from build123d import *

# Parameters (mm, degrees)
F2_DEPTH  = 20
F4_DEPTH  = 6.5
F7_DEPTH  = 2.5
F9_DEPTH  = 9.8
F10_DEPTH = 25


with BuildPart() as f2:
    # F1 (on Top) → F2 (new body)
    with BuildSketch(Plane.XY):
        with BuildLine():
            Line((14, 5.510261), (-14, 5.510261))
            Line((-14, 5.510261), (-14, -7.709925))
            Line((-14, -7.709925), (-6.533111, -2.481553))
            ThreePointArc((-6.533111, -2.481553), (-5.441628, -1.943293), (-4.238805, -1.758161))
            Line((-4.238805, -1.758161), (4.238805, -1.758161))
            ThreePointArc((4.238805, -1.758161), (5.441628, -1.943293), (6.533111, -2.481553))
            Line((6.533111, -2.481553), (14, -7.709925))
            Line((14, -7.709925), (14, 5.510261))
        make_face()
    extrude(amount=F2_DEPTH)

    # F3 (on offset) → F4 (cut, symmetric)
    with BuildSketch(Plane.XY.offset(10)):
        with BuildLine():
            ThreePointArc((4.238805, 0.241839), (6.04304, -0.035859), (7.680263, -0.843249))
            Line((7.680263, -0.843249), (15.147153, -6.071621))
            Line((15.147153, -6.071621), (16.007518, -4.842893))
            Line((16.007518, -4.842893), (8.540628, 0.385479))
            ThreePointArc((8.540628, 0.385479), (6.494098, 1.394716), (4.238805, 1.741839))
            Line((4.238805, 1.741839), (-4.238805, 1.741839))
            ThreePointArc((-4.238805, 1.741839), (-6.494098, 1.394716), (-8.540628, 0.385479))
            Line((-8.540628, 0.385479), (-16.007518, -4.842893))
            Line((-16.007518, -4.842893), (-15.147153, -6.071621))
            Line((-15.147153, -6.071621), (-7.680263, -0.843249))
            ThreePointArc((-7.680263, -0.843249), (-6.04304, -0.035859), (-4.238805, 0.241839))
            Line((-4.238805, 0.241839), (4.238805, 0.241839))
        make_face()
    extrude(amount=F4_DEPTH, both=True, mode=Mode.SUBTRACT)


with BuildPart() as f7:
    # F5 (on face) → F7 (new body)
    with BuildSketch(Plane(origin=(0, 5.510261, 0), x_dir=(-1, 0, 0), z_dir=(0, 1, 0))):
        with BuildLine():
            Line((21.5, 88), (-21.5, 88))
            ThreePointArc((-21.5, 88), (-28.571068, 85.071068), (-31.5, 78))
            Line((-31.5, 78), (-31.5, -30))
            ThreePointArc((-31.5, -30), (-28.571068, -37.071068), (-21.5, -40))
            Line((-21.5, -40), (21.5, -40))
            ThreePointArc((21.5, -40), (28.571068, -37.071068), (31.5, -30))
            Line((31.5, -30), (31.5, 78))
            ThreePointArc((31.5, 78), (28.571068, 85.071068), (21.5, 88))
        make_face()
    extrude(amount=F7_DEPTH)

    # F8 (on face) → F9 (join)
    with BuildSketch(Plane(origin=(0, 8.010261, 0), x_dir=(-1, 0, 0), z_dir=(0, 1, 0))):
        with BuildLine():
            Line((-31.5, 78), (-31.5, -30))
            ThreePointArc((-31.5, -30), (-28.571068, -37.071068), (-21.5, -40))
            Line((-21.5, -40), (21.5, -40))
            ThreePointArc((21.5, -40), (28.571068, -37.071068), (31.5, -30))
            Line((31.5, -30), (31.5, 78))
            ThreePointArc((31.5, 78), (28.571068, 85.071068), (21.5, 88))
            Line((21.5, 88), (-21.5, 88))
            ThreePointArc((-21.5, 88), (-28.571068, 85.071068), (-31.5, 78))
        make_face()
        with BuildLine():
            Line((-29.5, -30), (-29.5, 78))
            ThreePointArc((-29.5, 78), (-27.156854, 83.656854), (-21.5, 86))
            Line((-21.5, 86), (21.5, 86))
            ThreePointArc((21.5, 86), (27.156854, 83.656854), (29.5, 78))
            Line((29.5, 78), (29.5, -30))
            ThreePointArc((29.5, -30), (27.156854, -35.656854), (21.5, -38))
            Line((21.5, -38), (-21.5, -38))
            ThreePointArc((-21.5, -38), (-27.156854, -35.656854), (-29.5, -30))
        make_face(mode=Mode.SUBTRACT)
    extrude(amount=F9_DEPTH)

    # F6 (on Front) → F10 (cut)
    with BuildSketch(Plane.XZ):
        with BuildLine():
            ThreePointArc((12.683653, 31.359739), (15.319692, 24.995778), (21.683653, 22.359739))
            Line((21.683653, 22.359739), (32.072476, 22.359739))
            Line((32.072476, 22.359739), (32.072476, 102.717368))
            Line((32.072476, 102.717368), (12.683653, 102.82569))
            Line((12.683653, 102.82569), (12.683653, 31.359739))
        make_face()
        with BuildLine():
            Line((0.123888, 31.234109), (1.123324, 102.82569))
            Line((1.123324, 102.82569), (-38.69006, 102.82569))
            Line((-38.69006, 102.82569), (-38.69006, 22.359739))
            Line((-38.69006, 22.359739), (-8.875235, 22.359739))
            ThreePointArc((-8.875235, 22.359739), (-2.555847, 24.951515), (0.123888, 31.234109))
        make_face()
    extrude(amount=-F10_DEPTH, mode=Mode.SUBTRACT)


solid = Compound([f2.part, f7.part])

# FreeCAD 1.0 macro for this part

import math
import FreeCAD as App
import Part
import Sketcher

V = App.Vector
Q = App.Units.Quantity

doc = App.newDocument("Part")
body = doc.addObject("PartDesign::Body", "Body")

sketch1 = body.newObject("Sketcher::SketchObject", "Sketch")
sketch1.AttachmentSupport = (doc.getObject("XY_Plane"), [""])
sketch1.MapMode = "FlatFace"
sketch1.addGeometry(Part.LineSegment(V(14, 5.510261, 0), V(-14, 5.510261, 0)), False)
sketch1.addGeometry(Part.LineSegment(V(-14, 5.510261, 0), V(-14, -7.709925, 0)), False)
sketch1.addGeometry(Part.LineSegment(V(-14, -7.709925, 0), V(-6.533111, -2.481553, 0)), False)
sketch1.addGeometry(Part.ArcOfCircle(Part.Circle(V(-4.238806, -5.758158, 0), V(0, 0, 1), 3.999997), math.radians(89.999988), math.radians(125.000016)), False)
sketch1.addGeometry(Part.LineSegment(V(-4.238805, -1.758161, 0), V(4.238805, -1.758161, 0)), False)
sketch1.addGeometry(Part.ArcOfCircle(Part.Circle(V(4.238806, -5.758158, 0), V(0, 0, 1), 3.999997), math.radians(54.999984), math.radians(90.000012)), False)
sketch1.addGeometry(Part.LineSegment(V(6.533111, -2.481553, 0), V(14, -7.709925, 0)), False)
sketch1.addGeometry(Part.LineSegment(V(14, -7.709925, 0), V(14, 5.510261, 0)), False)
sketch1.addConstraint(Sketcher.Constraint("Coincident", 0, 2, 1, 1))
sketch1.addConstraint(Sketcher.Constraint("Coincident", 1, 2, 2, 1))
sketch1.addConstraint(Sketcher.Constraint("Tangent", 2, 2, 3, 2))
sketch1.addConstraint(Sketcher.Constraint("Tangent", 3, 1, 4, 1))
sketch1.addConstraint(Sketcher.Constraint("Tangent", 4, 2, 5, 2))
sketch1.addConstraint(Sketcher.Constraint("Tangent", 5, 1, 6, 1))
sketch1.addConstraint(Sketcher.Constraint("Coincident", 6, 2, 7, 1))
sketch1.addConstraint(Sketcher.Constraint("Coincident", 7, 2, 0, 1))
sketch1.addConstraint(Sketcher.Constraint("Horizontal", 0))
sketch1.addConstraint(Sketcher.Constraint("Vertical", 1))
sketch1.addConstraint(Sketcher.Constraint("Horizontal", 4))
sketch1.addConstraint(Sketcher.Constraint("Vertical", 7))
sketch1.addConstraint(Sketcher.Constraint("Equal", 3, 5))
sketch1.addConstraint(Sketcher.Constraint("Symmetric", 2, 2, 5, 1, -2))
sketch1.addConstraint(Sketcher.Constraint("Horizontal", 1, 2, 6, 2))
sketch1.addConstraint(Sketcher.Constraint("DistanceX", 0, 2, 0, 1, Q("28 mm")))
sketch1.addConstraint(Sketcher.Constraint("Angle", 2, Q("35 deg")))
sketch1.addConstraint(Sketcher.Constraint("Radius", 3, Q("3.999997 mm")))
sketch1.addConstraint(Sketcher.Constraint("DistanceX", 4, 1, 4, 2, Q("8.47761 mm")))
sketch1.addConstraint(Sketcher.Constraint("DistanceY", 1, 2, 1, 1, Q("13.220186 mm")))
sketch1.addConstraint(Sketcher.Constraint("DistanceY", 3, 3, -1, 1, Q("5.758158 mm")))
pad1 = body.newObject("PartDesign::Pad", "Pad")
pad1.Profile = sketch1
pad1.Length = 20

sketch2 = body.newObject("Sketcher::SketchObject", "Sketch001")
sketch2.AttachmentSupport = (doc.getObject("XY_Plane"), [""])
sketch2.MapMode = "FlatFace"
sketch2.AttachmentOffset = App.Placement(V(0, 0, 10), App.Rotation())
sketch2.addGeometry(Part.ArcOfCircle(Part.Circle(V(4.238808, -5.758148, 0), V(0, 0, 1), 5.999987), math.radians(54.999956), math.radians(90.00003)), False)
sketch2.addGeometry(Part.LineSegment(V(7.680263, -0.843249, 0), V(15.147153, -6.071621, 0)), False)
sketch2.addGeometry(Part.LineSegment(V(15.147153, -6.071621, 0), V(16.007518, -4.842893, 0)), False)
sketch2.addGeometry(Part.LineSegment(V(16.007518, -4.842893, 0), V(8.540628, 0.385479, 0)), False)
sketch2.addGeometry(Part.ArcOfCircle(Part.Circle(V(4.238804, -5.758162, 0), V(0, 0, 1), 7.500001), math.radians(54.999998), math.radians(89.999992)), False)
sketch2.addGeometry(Part.LineSegment(V(4.238805, 1.741839, 0), V(-4.238805, 1.741839, 0)), False)
sketch2.addGeometry(Part.ArcOfCircle(Part.Circle(V(-4.238804, -5.758162, 0), V(0, 0, 1), 7.500001), math.radians(90.000008), math.radians(125.000002)), False)
sketch2.addGeometry(Part.LineSegment(V(-8.540628, 0.385479, 0), V(-16.007518, -4.842893, 0)), False)
sketch2.addGeometry(Part.LineSegment(V(-16.007518, -4.842893, 0), V(-15.147153, -6.071621, 0)), False)
sketch2.addGeometry(Part.LineSegment(V(-15.147153, -6.071621, 0), V(-7.680263, -0.843249, 0)), False)
sketch2.addGeometry(Part.ArcOfCircle(Part.Circle(V(-4.238808, -5.758148, 0), V(0, 0, 1), 5.999987), math.radians(89.99997), math.radians(125.000044)), False)
sketch2.addGeometry(Part.LineSegment(V(-4.238805, 0.241839, 0), V(4.238805, 0.241839, 0)), False)
sketch2.addConstraint(Sketcher.Constraint("Tangent", 0, 1, 1, 1))
sketch2.addConstraint(Sketcher.Constraint("Coincident", 1, 2, 2, 1))
sketch2.addConstraint(Sketcher.Constraint("Coincident", 2, 2, 3, 1))
sketch2.addConstraint(Sketcher.Constraint("Tangent", 3, 2, 4, 1))
sketch2.addConstraint(Sketcher.Constraint("Tangent", 4, 2, 5, 1))
sketch2.addConstraint(Sketcher.Constraint("Tangent", 5, 2, 6, 1))
sketch2.addConstraint(Sketcher.Constraint("Tangent", 6, 2, 7, 1))
sketch2.addConstraint(Sketcher.Constraint("Coincident", 7, 2, 8, 1))
sketch2.addConstraint(Sketcher.Constraint("Coincident", 8, 2, 9, 1))
sketch2.addConstraint(Sketcher.Constraint("Tangent", 9, 2, 10, 2))
sketch2.addConstraint(Sketcher.Constraint("Tangent", 10, 1, 11, 1))
sketch2.addConstraint(Sketcher.Constraint("Tangent", 11, 2, 0, 2))
sketch2.addConstraint(Sketcher.Constraint("Horizontal", 5))
sketch2.addConstraint(Sketcher.Constraint("Horizontal", 11))
sketch2.addConstraint(Sketcher.Constraint("Equal", 4, 6))
sketch2.addConstraint(Sketcher.Constraint("Equal", 0, 10))
sketch2.addConstraint(Sketcher.Constraint("Symmetric", 3, 2, 6, 2, -2))
sketch2.addConstraint(Sketcher.Constraint("Symmetric", 1, 2, 8, 2, -2))
sketch2.addConstraint(Sketcher.Constraint("Perpendicular", 1, 2))
sketch2.addConstraint(Sketcher.Constraint("Perpendicular", 2, 3))
sketch2.addConstraint(Sketcher.Constraint("Perpendicular", 7, 8))
sketch2.addConstraint(Sketcher.Constraint("Perpendicular", 8, 9))
sketch2.addConstraint(Sketcher.Constraint("Vertical", 5, 2, 10, 1))
sketch2.addConstraint(Sketcher.Constraint("Equal", 1, 3))
sketch2.addConstraint(Sketcher.Constraint("Radius", 4, Q("7.500001 mm")))
sketch2.addConstraint(Sketcher.Constraint("Angle", 1, Q("-34.999997 deg")))
sketch2.addConstraint(Sketcher.Constraint("DistanceY", 6, 3, 10, 1, Q("6.000001 mm")))
sketch2.addConstraint(Sketcher.Constraint("DistanceX", 5, 2, 5, 1, Q("8.47761 mm")))
sketch2.addConstraint(Sketcher.Constraint("DistanceY", 1, 2, 3, 2, Q("6.4571 mm")))
sketch2.addConstraint(Sketcher.Constraint("DistanceY", 0, 1, -1, 1, Q("0.843249 mm")))
pocket1 = body.newObject("PartDesign::Pocket", "Pocket")
pocket1.Profile = sketch2
pocket1.Length = 13
pocket1.Midplane = True
body2 = doc.addObject("PartDesign::Body", "Body001")

sketch3 = body2.newObject("Sketcher::SketchObject", "Sketch002")
sketch3.AttachmentSupport = (doc.getObject("XZ_Plane001"), [""])
sketch3.MapMode = "FlatFace"
sketch3.AttachmentOffset = App.Placement(V(0, 0, -5.510261), App.Rotation())
sketch3.addGeometry(Part.LineSegment(V(-21.5, 88, 0), V(21.5, 88, 0)), False)
sketch3.addGeometry(Part.ArcOfCircle(Part.Circle(V(21.500001, 78.000001, 0), V(0, 0, 1), 9.999999), math.radians(-0.000004), math.radians(90.000004)), False)
sketch3.addGeometry(Part.LineSegment(V(31.5, 78, 0), V(31.5, -30, 0)), False)
sketch3.addGeometry(Part.ArcOfCircle(Part.Circle(V(21.500001, -30.000001, 0), V(0, 0, 1), 9.999999), math.radians(-90.000004), math.radians(0.000004)), False)
sketch3.addGeometry(Part.LineSegment(V(21.5, -40, 0), V(-21.5, -40, 0)), False)
sketch3.addGeometry(Part.ArcOfCircle(Part.Circle(V(-21.500001, -30.000001, 0), V(0, 0, 1), 9.999999), math.radians(179.999996), math.radians(270.000004)), False)
sketch3.addGeometry(Part.LineSegment(V(-31.5, -30, 0), V(-31.5, 78, 0)), False)
sketch3.addGeometry(Part.ArcOfCircle(Part.Circle(V(-21.500001, 78.000001, 0), V(0, 0, 1), 9.999999), math.radians(89.999996), math.radians(180.000004)), False)
sketch3.addConstraint(Sketcher.Constraint("Tangent", 0, 2, 1, 2))
sketch3.addConstraint(Sketcher.Constraint("Tangent", 1, 1, 2, 1))
sketch3.addConstraint(Sketcher.Constraint("Tangent", 2, 2, 3, 2))
sketch3.addConstraint(Sketcher.Constraint("Tangent", 3, 1, 4, 1))
sketch3.addConstraint(Sketcher.Constraint("Tangent", 4, 2, 5, 2))
sketch3.addConstraint(Sketcher.Constraint("Tangent", 5, 1, 6, 1))
sketch3.addConstraint(Sketcher.Constraint("Tangent", 6, 2, 7, 2))
sketch3.addConstraint(Sketcher.Constraint("Tangent", 7, 1, 0, 1))
sketch3.addConstraint(Sketcher.Constraint("Horizontal", 0))
sketch3.addConstraint(Sketcher.Constraint("Vertical", 2))
sketch3.addConstraint(Sketcher.Constraint("Horizontal", 4))
sketch3.addConstraint(Sketcher.Constraint("Vertical", 6))
sketch3.addConstraint(Sketcher.Constraint("Equal", 1, 3))
sketch3.addConstraint(Sketcher.Constraint("Equal", 3, 5))
sketch3.addConstraint(Sketcher.Constraint("Equal", 5, 7))
sketch3.addConstraint(Sketcher.Constraint("Radius", 1, Q("9.999999 mm")))
sketch3.addConstraint(Sketcher.Constraint("DistanceX", 0, 1, 0, 2, Q("43 mm")))
sketch3.addConstraint(Sketcher.Constraint("DistanceY", 2, 2, 2, 1, Q("108 mm")))
sketch3.addConstraint(Sketcher.Constraint("DistanceY", -1, 1, 1, 3, Q("78.000001 mm")))
sketch3.addConstraint(Sketcher.Constraint("DistanceX", -1, 1, 1, 3, Q("21.500001 mm")))
pad2 = body2.newObject("PartDesign::Pad", "Pad001")
pad2.Profile = sketch3
pad2.Length = 2.5
pad2.Reversed = True

sketch4 = body2.newObject("Sketcher::SketchObject", "Sketch003")
sketch4.AttachmentSupport = (doc.getObject("XZ_Plane001"), [""])
sketch4.MapMode = "FlatFace"
sketch4.AttachmentOffset = App.Placement(V(0, 0, -8.010261), App.Rotation())
sketch4.addGeometry(Part.LineSegment(V(31.5, 78, 0), V(31.5, -30, 0)), False)
sketch4.addGeometry(Part.ArcOfCircle(Part.Circle(V(21.500001, -30.000001, 0), V(0, 0, 1), 9.999999), math.radians(-90.000004), math.radians(0.000004)), False)
sketch4.addGeometry(Part.LineSegment(V(21.5, -40, 0), V(-21.5, -40, 0)), False)
sketch4.addGeometry(Part.ArcOfCircle(Part.Circle(V(-21.500001, -30.000001, 0), V(0, 0, 1), 9.999999), math.radians(179.999996), math.radians(270.000004)), False)
sketch4.addGeometry(Part.LineSegment(V(-31.5, -30, 0), V(-31.5, 78, 0)), False)
sketch4.addGeometry(Part.ArcOfCircle(Part.Circle(V(-21.500001, 78.000001, 0), V(0, 0, 1), 9.999999), math.radians(89.999996), math.radians(180.000004)), False)
sketch4.addGeometry(Part.LineSegment(V(-21.5, 88, 0), V(21.5, 88, 0)), False)
sketch4.addGeometry(Part.ArcOfCircle(Part.Circle(V(21.500001, 78.000001, 0), V(0, 0, 1), 9.999999), math.radians(-0.000004), math.radians(90.000004)), False)
sketch4.addGeometry(Part.ArcOfCircle(Part.Circle(V(21.499999, -29.999999, 0), V(0, 0, 1), 8.000001), math.radians(-89.999994), math.radians(-0.000006)), False)
sketch4.addGeometry(Part.LineSegment(V(29.5, -30, 0), V(29.5, 78, 0)), False)
sketch4.addGeometry(Part.ArcOfCircle(Part.Circle(V(21.499999, 77.999999, 0), V(0, 0, 1), 8.000001), math.radians(0.000006), math.radians(89.999994)), False)
sketch4.addGeometry(Part.LineSegment(V(21.5, 86, 0), V(-21.5, 86, 0)), False)
sketch4.addGeometry(Part.ArcOfCircle(Part.Circle(V(-21.499999, 77.999999, 0), V(0, 0, 1), 8.000001), math.radians(90.000006), math.radians(179.999994)), False)
sketch4.addGeometry(Part.LineSegment(V(-29.5, 78, 0), V(-29.5, -30, 0)), False)
sketch4.addGeometry(Part.ArcOfCircle(Part.Circle(V(-21.499999, -29.999999, 0), V(0, 0, 1), 8.000001), math.radians(-179.999994), math.radians(-90.000006)), False)
sketch4.addGeometry(Part.LineSegment(V(-21.5, -38, 0), V(21.5, -38, 0)), False)
sketch4.addConstraint(Sketcher.Constraint("Tangent", 0, 2, 1, 2))
sketch4.addConstraint(Sketcher.Constraint("Tangent", 1, 1, 2, 1))
sketch4.addConstraint(Sketcher.Constraint("Tangent", 2, 2, 3, 2))
sketch4.addConstraint(Sketcher.Constraint("Tangent", 3, 1, 4, 1))
sketch4.addConstraint(Sketcher.Constraint("Tangent", 4, 2, 5, 2))
sketch4.addConstraint(Sketcher.Constraint("Tangent", 5, 1, 6, 1))
sketch4.addConstraint(Sketcher.Constraint("Tangent", 6, 2, 7, 2))
sketch4.addConstraint(Sketcher.Constraint("Tangent", 7, 1, 0, 1))
sketch4.addConstraint(Sketcher.Constraint("Tangent", 8, 2, 9, 1))
sketch4.addConstraint(Sketcher.Constraint("Tangent", 9, 2, 10, 1))
sketch4.addConstraint(Sketcher.Constraint("Tangent", 10, 2, 11, 1))
sketch4.addConstraint(Sketcher.Constraint("Tangent", 11, 2, 12, 1))
sketch4.addConstraint(Sketcher.Constraint("Tangent", 12, 2, 13, 1))
sketch4.addConstraint(Sketcher.Constraint("Tangent", 13, 2, 14, 1))
sketch4.addConstraint(Sketcher.Constraint("Tangent", 14, 2, 15, 1))
sketch4.addConstraint(Sketcher.Constraint("Tangent", 15, 2, 8, 1))
sketch4.addConstraint(Sketcher.Constraint("Vertical", 0))
sketch4.addConstraint(Sketcher.Constraint("Horizontal", 2))
sketch4.addConstraint(Sketcher.Constraint("Vertical", 4))
sketch4.addConstraint(Sketcher.Constraint("Horizontal", 6))
sketch4.addConstraint(Sketcher.Constraint("Vertical", 9))
sketch4.addConstraint(Sketcher.Constraint("Horizontal", 11))
sketch4.addConstraint(Sketcher.Constraint("Vertical", 13))
sketch4.addConstraint(Sketcher.Constraint("Horizontal", 15))
sketch4.addConstraint(Sketcher.Constraint("Coincident", 8, 3, 1, 3))
sketch4.addConstraint(Sketcher.Constraint("Coincident", 10, 3, 7, 3))
sketch4.addConstraint(Sketcher.Constraint("Coincident", 12, 3, 5, 3))
sketch4.addConstraint(Sketcher.Constraint("Equal", 1, 3))
sketch4.addConstraint(Sketcher.Constraint("Equal", 3, 5))
sketch4.addConstraint(Sketcher.Constraint("Equal", 5, 7))
sketch4.addConstraint(Sketcher.Constraint("Equal", 12, 14))
sketch4.addConstraint(Sketcher.Constraint("Radius", 1, Q("9.999999 mm")))
sketch4.addConstraint(Sketcher.Constraint("Radius", 8, Q("8.000001 mm")))
sketch4.addConstraint(Sketcher.Constraint("DistanceX", 2, 2, 2, 1, Q("43 mm")))
sketch4.addConstraint(Sketcher.Constraint("DistanceY", 0, 2, 0, 1, Q("108 mm")))
sketch4.addConstraint(Sketcher.Constraint("DistanceY", 1, 3, -1, 1, Q("30.000001 mm")))
sketch4.addConstraint(Sketcher.Constraint("DistanceX", -1, 1, 1, 3, Q("21.500001 mm")))
pad3 = body2.newObject("PartDesign::Pad", "Pad002")
pad3.Profile = sketch4
pad3.Length = 9.8
pad3.Reversed = True

sketch5 = body2.newObject("Sketcher::SketchObject", "Sketch004")
sketch5.AttachmentSupport = (doc.getObject("XZ_Plane001"), [""])
sketch5.MapMode = "FlatFace"
sketch5.addGeometry(Part.ArcOfCircle(Part.Circle(V(21.683653, 31.359739, 0), V(0, 0, 1), 9), math.radians(-179.999999), math.radians(-90.000001)), False)
sketch5.addGeometry(Part.LineSegment(V(21.683653, 22.359739, 0), V(32.072476, 22.359739, 0)), False)
sketch5.addGeometry(Part.LineSegment(V(32.072476, 22.359739, 0), V(32.072476, 102.717368, 0)), False)
sketch5.addGeometry(Part.LineSegment(V(32.072476, 102.717368, 0), V(12.683653, 102.82569, 0)), False)
sketch5.addGeometry(Part.LineSegment(V(12.683653, 102.82569, 0), V(12.683653, 31.359739, 0)), False)
sketch5.addGeometry(Part.LineSegment(V(0.123888, 31.234109, 0), V(1.123324, 102.82569, 0)), False)
sketch5.addGeometry(Part.LineSegment(V(1.123324, 102.82569, 0), V(-38.69006, 102.82569, 0)), False)
sketch5.addGeometry(Part.LineSegment(V(-38.69006, 102.82569, 0), V(-38.69006, 22.359739, 0)), False)
sketch5.addGeometry(Part.LineSegment(V(-38.69006, 22.359739, 0), V(-8.875235, 22.359739, 0)), False)
sketch5.addGeometry(Part.ArcOfCircle(Part.Circle(V(-8.875235, 31.359739, 0), V(0, 0, 1), 9), math.radians(-90), math.radians(-0.79981)), False)
sketch5.addConstraint(Sketcher.Constraint("Tangent", 0, 2, 1, 1))
sketch5.addConstraint(Sketcher.Constraint("Coincident", 1, 2, 2, 1))
sketch5.addConstraint(Sketcher.Constraint("Coincident", 2, 2, 3, 1))
sketch5.addConstraint(Sketcher.Constraint("Coincident", 3, 2, 4, 1))
sketch5.addConstraint(Sketcher.Constraint("Tangent", 4, 2, 0, 1))
sketch5.addConstraint(Sketcher.Constraint("Coincident", 5, 2, 6, 1))
sketch5.addConstraint(Sketcher.Constraint("Coincident", 6, 2, 7, 1))
sketch5.addConstraint(Sketcher.Constraint("Coincident", 7, 2, 8, 1))
sketch5.addConstraint(Sketcher.Constraint("Tangent", 8, 2, 9, 1))
sketch5.addConstraint(Sketcher.Constraint("Tangent", 9, 2, 5, 1))
sketch5.addConstraint(Sketcher.Constraint("Horizontal", 1))
sketch5.addConstraint(Sketcher.Constraint("Vertical", 2))
sketch5.addConstraint(Sketcher.Constraint("Vertical", 4))
sketch5.addConstraint(Sketcher.Constraint("Horizontal", 6))
sketch5.addConstraint(Sketcher.Constraint("Vertical", 7))
sketch5.addConstraint(Sketcher.Constraint("Horizontal", 8))
sketch5.addConstraint(Sketcher.Constraint("Equal", 0, 9))
sketch5.addConstraint(Sketcher.Constraint("Horizontal", 0, 3, 9, 3))
sketch5.addConstraint(Sketcher.Constraint("Horizontal", 3, 2, 5, 2))
sketch5.addConstraint(Sketcher.Constraint("Radius", 0, Q("9 mm")))
sketch5.addConstraint(Sketcher.Constraint("DistanceY", 2, 1, 2, 2, Q("80.357629 mm")))
sketch5.addConstraint(Sketcher.Constraint("DistanceY", 4, 2, 4, 1, Q("71.465951 mm")))
sketch5.addConstraint(Sketcher.Constraint("DistanceX", 1, 1, 1, 2, Q("10.388823 mm")))
sketch5.addConstraint(Sketcher.Constraint("DistanceX", 6, 2, 6, 1, Q("39.813384 mm")))
sketch5.addConstraint(Sketcher.Constraint("DistanceX", 8, 1, 8, 2, Q("29.814825 mm")))
sketch5.addConstraint(Sketcher.Constraint("DistanceY", -1, 1, 0, 3, Q("31.359739 mm")))
sketch5.addConstraint(Sketcher.Constraint("DistanceX", 6, 2, -1, 1, Q("38.69006 mm")))
sketch5.addConstraint(Sketcher.Constraint("DistanceX", 9, 3, 0, 3, Q("30.558888 mm")))
pocket2 = body2.newObject("PartDesign::Pocket", "Pocket001")
pocket2.Profile = sketch5
pocket2.Length = 25

doc.recompute()
